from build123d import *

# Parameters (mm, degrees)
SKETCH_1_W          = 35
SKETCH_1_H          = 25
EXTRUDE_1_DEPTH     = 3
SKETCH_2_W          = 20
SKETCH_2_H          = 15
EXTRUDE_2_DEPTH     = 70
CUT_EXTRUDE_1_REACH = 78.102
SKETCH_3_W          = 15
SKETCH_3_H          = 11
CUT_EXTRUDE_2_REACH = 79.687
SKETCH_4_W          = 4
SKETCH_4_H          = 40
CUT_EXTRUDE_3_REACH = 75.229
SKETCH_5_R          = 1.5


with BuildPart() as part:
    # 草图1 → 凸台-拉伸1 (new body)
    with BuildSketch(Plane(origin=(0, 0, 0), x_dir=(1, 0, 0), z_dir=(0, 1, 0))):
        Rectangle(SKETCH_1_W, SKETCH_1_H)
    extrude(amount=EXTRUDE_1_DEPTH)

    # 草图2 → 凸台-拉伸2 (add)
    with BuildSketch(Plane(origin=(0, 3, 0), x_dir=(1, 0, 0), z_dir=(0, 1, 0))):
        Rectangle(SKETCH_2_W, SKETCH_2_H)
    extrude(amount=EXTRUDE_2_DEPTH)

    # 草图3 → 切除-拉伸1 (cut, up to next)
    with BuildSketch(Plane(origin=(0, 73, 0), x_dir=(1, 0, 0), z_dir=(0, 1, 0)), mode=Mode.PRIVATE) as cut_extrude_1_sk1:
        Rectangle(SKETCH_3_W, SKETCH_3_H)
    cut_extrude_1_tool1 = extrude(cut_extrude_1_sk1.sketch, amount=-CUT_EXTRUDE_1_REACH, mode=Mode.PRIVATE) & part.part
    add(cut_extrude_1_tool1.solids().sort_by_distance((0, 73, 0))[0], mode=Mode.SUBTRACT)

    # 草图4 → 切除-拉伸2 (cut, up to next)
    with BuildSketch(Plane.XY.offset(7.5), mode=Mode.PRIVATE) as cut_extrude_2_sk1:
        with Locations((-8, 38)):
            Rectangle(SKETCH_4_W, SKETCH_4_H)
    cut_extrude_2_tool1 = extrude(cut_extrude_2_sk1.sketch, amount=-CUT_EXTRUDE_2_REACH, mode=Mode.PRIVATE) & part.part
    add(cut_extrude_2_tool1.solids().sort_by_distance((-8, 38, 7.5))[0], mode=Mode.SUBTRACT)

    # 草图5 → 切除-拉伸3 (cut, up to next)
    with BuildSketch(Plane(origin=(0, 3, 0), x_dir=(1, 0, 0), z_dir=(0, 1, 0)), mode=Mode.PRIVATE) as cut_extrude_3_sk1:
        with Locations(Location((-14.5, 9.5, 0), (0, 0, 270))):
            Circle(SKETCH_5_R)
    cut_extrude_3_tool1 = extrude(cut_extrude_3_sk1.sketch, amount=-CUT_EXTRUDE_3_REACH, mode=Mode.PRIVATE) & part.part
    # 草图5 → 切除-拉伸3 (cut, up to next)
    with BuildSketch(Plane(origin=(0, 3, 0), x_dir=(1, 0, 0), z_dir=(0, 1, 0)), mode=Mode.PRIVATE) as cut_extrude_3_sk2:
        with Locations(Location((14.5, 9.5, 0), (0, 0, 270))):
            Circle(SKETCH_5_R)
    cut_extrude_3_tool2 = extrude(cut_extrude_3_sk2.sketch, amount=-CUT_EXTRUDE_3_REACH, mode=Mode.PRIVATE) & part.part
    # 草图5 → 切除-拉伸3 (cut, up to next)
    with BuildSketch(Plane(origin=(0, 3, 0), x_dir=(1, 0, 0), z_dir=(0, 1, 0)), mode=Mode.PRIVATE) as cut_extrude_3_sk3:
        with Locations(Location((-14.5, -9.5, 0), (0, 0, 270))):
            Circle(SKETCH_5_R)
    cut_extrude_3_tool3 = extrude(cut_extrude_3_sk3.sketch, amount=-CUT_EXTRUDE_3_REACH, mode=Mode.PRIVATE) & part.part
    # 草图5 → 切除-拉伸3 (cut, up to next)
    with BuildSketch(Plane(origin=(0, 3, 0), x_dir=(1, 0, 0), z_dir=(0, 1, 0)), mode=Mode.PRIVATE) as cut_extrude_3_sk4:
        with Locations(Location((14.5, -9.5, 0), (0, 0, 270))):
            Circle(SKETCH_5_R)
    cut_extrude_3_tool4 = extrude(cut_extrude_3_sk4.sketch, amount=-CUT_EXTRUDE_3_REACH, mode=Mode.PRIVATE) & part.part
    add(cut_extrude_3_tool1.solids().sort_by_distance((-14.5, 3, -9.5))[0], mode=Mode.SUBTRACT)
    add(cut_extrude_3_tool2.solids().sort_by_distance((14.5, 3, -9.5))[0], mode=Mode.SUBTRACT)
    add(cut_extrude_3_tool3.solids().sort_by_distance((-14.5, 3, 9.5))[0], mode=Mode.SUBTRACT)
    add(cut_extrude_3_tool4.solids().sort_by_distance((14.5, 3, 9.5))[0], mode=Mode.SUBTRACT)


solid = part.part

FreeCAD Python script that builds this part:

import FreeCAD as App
import Part
import Sketcher


def add_polygon(sketch, points):
    """Adds a closed chain of lines whose ends are joined by coincident constraints."""
    first, n = sketch.GeometryCount, len(points)
    for a, b in zip(points, points[1:] + points[:1]):
        sketch.addGeometry(Part.LineSegment(App.Vector(*a, 0), App.Vector(*b, 0)), False)
    for i in range(n):
        sketch.addConstraint(Sketcher.Constraint("Coincident", first + i, 2, first + (i + 1) % n, 1))

doc = App.newDocument("Part")
body = doc.addObject("PartDesign::Body", "Body")

sketch1 = body.newObject("Sketcher::SketchObject", "Sketch")
sketch1.AttachmentSupport = (doc.getObject("XZ_Plane"), [""])
sketch1.MapMode = "FlatFace"
add_polygon(sketch1, [(-18, -12), (-18, 12), (18, 12), (18, -12)])
sketch1.addConstraint([
    Sketcher.Constraint("Vertical", 0),
    Sketcher.Constraint("Horizontal", 1),
    Sketcher.Constraint("Vertical", 2),
    Sketcher.Constraint("Horizontal", 3),
    Sketcher.Constraint("Symmetric", 0, 2, 2, 2, -1, 1),
    Sketcher.Constraint("DistanceX", 1, 1, 1, 2, 35.0),
    Sketcher.Constraint("DistanceY", 0, 1, 0, 2, 25.0),
])
pad1 = body.newObject("PartDesign::Pad", "Pad")
pad1.Profile = sketch1
pad1.Length = 3
pad1.Reversed = True

sketch2 = body.newObject("Sketcher::SketchObject", "Sketch001")
sketch2.AttachmentSupport = (doc.getObject("XZ_Plane"), [""])
sketch2.MapMode = "FlatFace"
sketch2.AttachmentOffset = App.Placement(App.Vector(0, 0, -3), App.Rotation())
add_polygon(sketch2, [(-10, -8), (-10, 8), (10, 8), (10, -8)])
sketch2.addConstraint([
    Sketcher.Constraint("Vertical", 0),
    Sketcher.Constraint("Horizontal", 1),
    Sketcher.Constraint("Vertical", 2),
    Sketcher.Constraint("Horizontal", 3),
    Sketcher.Constraint("Symmetric", 0, 2, 2, 2, -1, 1),
    Sketcher.Constraint("DistanceX", 1, 1, 1, 2, 20.0),
    Sketcher.Constraint("DistanceY", 0, 1, 0, 2, 15.0),
])
pad2 = body.newObject("PartDesign::Pad", "Pad001")
pad2.Profile = sketch2
pad2.Length = 70
pad2.Reversed = True

sketch3 = body.newObject("Sketcher::SketchObject", "Sketch002")
sketch3.AttachmentSupport = (doc.getObject("XZ_Plane"), [""])
sketch3.MapMode = "FlatFace"
sketch3.AttachmentOffset = App.Placement(App.Vector(0, 0, -73), App.Rotation())
add_polygon(sketch3, [(-8, -6), (-8, 6), (8, 6), (8, -6)])
sketch3.addConstraint([
    Sketcher.Constraint("Vertical", 0),
    Sketcher.Constraint("Horizontal", 1),
    Sketcher.Constraint("Vertical", 2),
    Sketcher.Constraint("Horizontal", 3),
    Sketcher.Constraint("Symmetric", 0, 2, 2, 2, -1, 1),
    Sketcher.Constraint("DistanceX", 1, 1, 1, 2, 15.0),
    Sketcher.Constraint("DistanceY", 0, 1, 0, 2, 11.0),
])
pocket1 = body.newObject("PartDesign::Pocket", "Pocket")
pocket1.Profile = sketch3
pocket1.Type = "UpToFirst"
pocket1.Reversed = True

sketch4 = body.newObject("Sketcher::SketchObject", "Sketch003")
sketch4.AttachmentSupport = (doc.getObject("XY_Plane"), [""])
sketch4.MapMode = "FlatFace"
sketch4.AttachmentOffset = App.Placement(App.Vector(0, 0, 7.5), App.Rotation())
add_polygon(sketch4, [(-10, 58), (-10, 18), (-6, 18), (-6, 58)])
sketch4.addConstraint([
    Sketcher.Constraint("Vertical", 0),
    Sketcher.Constraint("Horizontal", 1),
    Sketcher.Constraint("Vertical", 2),
    Sketcher.Constraint("Horizontal", 3),
    Sketcher.Constraint("DistanceX", 1, 1, 1, 2, 4.0),
    Sketcher.Constraint("DistanceY", 0, 2, 0, 1, 40.0),
    Sketcher.Constraint("DistanceX", 0, 2, -1, 1, 10.0),
    Sketcher.Constraint("DistanceY", -1, 1, 0, 2, 18.0),
])
pocket2 = body.newObject("PartDesign::Pocket", "Pocket001")
pocket2.Profile = sketch4
pocket2.Type = "UpToFirst"

sketch5 = body.newObject("Sketcher::SketchObject", "Sketch004")
sketch5.AttachmentSupport = (doc.getObject("XZ_Plane"), [""])
sketch5.MapMode = "FlatFace"
sketch5.AttachmentOffset = App.Placement(App.Vector(0, 0, -3), App.Rotation())
sketch5.addGeometry(Part.Circle(App.Vector(-14.5, -9.5, 0), App.Vector(0, 0, 1), 1.5), False)
sketch5.addConstraint([
    Sketcher.Constraint("Diameter", 0, 3.0),
    Sketcher.Constraint("DistanceX", 0, 3, -1, 1, 14.5),
    Sketcher.Constraint("DistanceY", 0, 3, -1, 1, 9.5),
])
pocket3 = body.newObject("PartDesign::Pocket", "Pocket002")
pocket3.Profile = sketch5
pocket3.Type = "UpToFirst"
pocket3.Reversed = True

sketch6 = body.newObject("Sketcher::SketchObject", "Sketch005")
sketch6.AttachmentSupport = (doc.getObject("XZ_Plane"), [""])
sketch6.MapMode = "FlatFace"
sketch6.AttachmentOffset = App.Placement(App.Vector(0, 0, -3), App.Rotation())
sketch6.addGeometry(Part.Circle(App.Vector(14.5, -9.5, 0), App.Vector(0, 0, 1), 1.5), False)
sketch6.addConstraint([
    Sketcher.Constraint("Diameter", 0, 3.0),
    Sketcher.Constraint("DistanceX", -1, 1, 0, 3, 14.5),
    Sketcher.Constraint("DistanceY", 0, 3, -1, 1, 9.5),
])
pocket4 = body.newObject("PartDesign::Pocket", "Pocket003")
pocket4.Profile = sketch6
pocket4.Type = "UpToFirst"
pocket4.Reversed = True

sketch7 = body.newObject("Sketcher::SketchObject", "Sketch006")
sketch7.AttachmentSupport = (doc.getObject("XZ_Plane"), [""])
sketch7.MapMode = "FlatFace"
sketch7.AttachmentOffset = App.Placement(App.Vector(0, 0, -3), App.Rotation())
sketch7.addGeometry(Part.Circle(App.Vector(-14.5, 9.5, 0), App.Vector(0, 0, 1), 1.5), False)
sketch7.addConstraint([
    Sketcher.Constraint("Diameter", 0, 3.0),
    Sketcher.Constraint("DistanceX", 0, 3, -1, 1, 14.5),
    Sketcher.Constraint("DistanceY", -1, 1, 0, 3, 9.5),
])
pocket5 = body.newObject("PartDesign::Pocket", "Pocket004")
pocket5.Profile = sketch7
pocket5.Type = "UpToFirst"
pocket5.Reversed = True

sketch8 = body.newObject("Sketcher::SketchObject", "Sketch007")
sketch8.AttachmentSupport = (doc.getObject("XZ_Plane"), [""])
sketch8.MapMode = "FlatFace"
sketch8.AttachmentOffset = App.Placement(App.Vector(0, 0, -3), App.Rotation())
sketch8.addGeometry(Part.Circle(App.Vector(14.5, 9.5, 0), App.Vector(0, 0, 1), 1.5), False)
sketch8.addConstraint([
    Sketcher.Constraint("Diameter", 0, 3.0),
    Sketcher.Constraint("DistanceX", -1, 1, 0, 3, 14.5),
    Sketcher.Constraint("DistanceY", -1, 1, 0, 3, 9.5),
])
pocket6 = body.newObject("PartDesign::Pocket", "Pocket005")
pocket6.Profile = sketch8
pocket6.Type = "UpToFirst"
pocket6.Reversed = True

doc.recompute()
